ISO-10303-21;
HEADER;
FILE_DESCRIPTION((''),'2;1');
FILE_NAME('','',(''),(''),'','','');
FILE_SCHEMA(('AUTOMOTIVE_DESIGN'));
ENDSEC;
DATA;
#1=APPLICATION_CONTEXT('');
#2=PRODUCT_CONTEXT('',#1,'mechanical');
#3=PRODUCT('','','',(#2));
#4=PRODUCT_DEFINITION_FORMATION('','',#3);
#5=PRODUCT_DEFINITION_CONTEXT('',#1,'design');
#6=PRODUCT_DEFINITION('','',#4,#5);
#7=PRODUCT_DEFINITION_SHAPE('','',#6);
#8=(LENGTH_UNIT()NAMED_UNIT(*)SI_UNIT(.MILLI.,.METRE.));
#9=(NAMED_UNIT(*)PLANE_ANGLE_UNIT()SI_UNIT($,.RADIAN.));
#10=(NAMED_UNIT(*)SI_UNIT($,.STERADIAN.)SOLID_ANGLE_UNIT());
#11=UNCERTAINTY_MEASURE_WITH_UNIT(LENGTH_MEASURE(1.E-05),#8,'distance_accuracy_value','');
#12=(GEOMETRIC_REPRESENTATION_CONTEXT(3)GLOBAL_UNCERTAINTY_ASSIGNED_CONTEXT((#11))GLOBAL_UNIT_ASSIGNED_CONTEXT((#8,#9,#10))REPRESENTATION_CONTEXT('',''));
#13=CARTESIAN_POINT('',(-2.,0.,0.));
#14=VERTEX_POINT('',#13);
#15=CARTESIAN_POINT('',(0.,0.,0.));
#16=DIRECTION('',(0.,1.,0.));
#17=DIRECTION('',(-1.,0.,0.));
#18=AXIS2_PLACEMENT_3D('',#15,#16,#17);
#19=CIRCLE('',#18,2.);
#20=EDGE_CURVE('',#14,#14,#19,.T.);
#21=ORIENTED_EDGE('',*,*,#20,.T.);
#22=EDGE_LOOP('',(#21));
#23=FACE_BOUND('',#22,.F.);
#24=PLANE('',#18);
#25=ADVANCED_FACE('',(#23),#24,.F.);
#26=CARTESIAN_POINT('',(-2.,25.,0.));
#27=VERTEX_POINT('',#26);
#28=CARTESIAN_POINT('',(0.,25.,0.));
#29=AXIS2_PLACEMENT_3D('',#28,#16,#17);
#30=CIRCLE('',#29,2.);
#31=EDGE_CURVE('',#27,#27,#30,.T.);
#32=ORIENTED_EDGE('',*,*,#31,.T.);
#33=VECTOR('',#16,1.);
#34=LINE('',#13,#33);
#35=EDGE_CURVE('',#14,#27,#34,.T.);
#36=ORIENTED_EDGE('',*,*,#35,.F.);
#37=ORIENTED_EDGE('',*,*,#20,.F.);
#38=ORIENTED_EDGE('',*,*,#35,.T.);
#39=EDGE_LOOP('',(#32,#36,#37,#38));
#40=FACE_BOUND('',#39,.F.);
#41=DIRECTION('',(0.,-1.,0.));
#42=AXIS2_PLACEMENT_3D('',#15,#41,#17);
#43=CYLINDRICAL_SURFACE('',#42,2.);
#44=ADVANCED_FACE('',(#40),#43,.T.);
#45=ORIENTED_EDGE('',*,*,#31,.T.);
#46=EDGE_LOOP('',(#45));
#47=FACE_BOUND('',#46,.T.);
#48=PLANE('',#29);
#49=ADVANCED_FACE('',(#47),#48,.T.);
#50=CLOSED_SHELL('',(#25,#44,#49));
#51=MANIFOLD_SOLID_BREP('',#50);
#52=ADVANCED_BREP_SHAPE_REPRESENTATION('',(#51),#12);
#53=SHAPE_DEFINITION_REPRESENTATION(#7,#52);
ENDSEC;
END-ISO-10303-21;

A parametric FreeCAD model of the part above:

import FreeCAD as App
import Part
import Sketcher
from FreeCAD import Vector

doc = App.newDocument("Part")
body = doc.addObject("PartDesign::Body", "Body")

# Sketch on XZ plane
sketch1 = body.newObject("Sketcher::SketchObject", "Sketch")
sketch1.AttachmentSupport = (doc.getObject("XZ_Plane"), [""])
sketch1.MapMode = "FlatFace"
sketch1.addGeometry(Part.Circle(Vector(0, 0, 0), Vector(0, 0, 1), 2), False)
sketch1.addConstraint([
    Sketcher.Constraint("Coincident", 0, 3, -1, 1),
    Sketcher.Constraint("Diameter", 0, 4.0),
])
pad1 = body.newObject("PartDesign::Pad", "Pad")
pad1.Profile = sketch1
pad1.Length = 25
pad1.Reversed = True

doc.recompute()
